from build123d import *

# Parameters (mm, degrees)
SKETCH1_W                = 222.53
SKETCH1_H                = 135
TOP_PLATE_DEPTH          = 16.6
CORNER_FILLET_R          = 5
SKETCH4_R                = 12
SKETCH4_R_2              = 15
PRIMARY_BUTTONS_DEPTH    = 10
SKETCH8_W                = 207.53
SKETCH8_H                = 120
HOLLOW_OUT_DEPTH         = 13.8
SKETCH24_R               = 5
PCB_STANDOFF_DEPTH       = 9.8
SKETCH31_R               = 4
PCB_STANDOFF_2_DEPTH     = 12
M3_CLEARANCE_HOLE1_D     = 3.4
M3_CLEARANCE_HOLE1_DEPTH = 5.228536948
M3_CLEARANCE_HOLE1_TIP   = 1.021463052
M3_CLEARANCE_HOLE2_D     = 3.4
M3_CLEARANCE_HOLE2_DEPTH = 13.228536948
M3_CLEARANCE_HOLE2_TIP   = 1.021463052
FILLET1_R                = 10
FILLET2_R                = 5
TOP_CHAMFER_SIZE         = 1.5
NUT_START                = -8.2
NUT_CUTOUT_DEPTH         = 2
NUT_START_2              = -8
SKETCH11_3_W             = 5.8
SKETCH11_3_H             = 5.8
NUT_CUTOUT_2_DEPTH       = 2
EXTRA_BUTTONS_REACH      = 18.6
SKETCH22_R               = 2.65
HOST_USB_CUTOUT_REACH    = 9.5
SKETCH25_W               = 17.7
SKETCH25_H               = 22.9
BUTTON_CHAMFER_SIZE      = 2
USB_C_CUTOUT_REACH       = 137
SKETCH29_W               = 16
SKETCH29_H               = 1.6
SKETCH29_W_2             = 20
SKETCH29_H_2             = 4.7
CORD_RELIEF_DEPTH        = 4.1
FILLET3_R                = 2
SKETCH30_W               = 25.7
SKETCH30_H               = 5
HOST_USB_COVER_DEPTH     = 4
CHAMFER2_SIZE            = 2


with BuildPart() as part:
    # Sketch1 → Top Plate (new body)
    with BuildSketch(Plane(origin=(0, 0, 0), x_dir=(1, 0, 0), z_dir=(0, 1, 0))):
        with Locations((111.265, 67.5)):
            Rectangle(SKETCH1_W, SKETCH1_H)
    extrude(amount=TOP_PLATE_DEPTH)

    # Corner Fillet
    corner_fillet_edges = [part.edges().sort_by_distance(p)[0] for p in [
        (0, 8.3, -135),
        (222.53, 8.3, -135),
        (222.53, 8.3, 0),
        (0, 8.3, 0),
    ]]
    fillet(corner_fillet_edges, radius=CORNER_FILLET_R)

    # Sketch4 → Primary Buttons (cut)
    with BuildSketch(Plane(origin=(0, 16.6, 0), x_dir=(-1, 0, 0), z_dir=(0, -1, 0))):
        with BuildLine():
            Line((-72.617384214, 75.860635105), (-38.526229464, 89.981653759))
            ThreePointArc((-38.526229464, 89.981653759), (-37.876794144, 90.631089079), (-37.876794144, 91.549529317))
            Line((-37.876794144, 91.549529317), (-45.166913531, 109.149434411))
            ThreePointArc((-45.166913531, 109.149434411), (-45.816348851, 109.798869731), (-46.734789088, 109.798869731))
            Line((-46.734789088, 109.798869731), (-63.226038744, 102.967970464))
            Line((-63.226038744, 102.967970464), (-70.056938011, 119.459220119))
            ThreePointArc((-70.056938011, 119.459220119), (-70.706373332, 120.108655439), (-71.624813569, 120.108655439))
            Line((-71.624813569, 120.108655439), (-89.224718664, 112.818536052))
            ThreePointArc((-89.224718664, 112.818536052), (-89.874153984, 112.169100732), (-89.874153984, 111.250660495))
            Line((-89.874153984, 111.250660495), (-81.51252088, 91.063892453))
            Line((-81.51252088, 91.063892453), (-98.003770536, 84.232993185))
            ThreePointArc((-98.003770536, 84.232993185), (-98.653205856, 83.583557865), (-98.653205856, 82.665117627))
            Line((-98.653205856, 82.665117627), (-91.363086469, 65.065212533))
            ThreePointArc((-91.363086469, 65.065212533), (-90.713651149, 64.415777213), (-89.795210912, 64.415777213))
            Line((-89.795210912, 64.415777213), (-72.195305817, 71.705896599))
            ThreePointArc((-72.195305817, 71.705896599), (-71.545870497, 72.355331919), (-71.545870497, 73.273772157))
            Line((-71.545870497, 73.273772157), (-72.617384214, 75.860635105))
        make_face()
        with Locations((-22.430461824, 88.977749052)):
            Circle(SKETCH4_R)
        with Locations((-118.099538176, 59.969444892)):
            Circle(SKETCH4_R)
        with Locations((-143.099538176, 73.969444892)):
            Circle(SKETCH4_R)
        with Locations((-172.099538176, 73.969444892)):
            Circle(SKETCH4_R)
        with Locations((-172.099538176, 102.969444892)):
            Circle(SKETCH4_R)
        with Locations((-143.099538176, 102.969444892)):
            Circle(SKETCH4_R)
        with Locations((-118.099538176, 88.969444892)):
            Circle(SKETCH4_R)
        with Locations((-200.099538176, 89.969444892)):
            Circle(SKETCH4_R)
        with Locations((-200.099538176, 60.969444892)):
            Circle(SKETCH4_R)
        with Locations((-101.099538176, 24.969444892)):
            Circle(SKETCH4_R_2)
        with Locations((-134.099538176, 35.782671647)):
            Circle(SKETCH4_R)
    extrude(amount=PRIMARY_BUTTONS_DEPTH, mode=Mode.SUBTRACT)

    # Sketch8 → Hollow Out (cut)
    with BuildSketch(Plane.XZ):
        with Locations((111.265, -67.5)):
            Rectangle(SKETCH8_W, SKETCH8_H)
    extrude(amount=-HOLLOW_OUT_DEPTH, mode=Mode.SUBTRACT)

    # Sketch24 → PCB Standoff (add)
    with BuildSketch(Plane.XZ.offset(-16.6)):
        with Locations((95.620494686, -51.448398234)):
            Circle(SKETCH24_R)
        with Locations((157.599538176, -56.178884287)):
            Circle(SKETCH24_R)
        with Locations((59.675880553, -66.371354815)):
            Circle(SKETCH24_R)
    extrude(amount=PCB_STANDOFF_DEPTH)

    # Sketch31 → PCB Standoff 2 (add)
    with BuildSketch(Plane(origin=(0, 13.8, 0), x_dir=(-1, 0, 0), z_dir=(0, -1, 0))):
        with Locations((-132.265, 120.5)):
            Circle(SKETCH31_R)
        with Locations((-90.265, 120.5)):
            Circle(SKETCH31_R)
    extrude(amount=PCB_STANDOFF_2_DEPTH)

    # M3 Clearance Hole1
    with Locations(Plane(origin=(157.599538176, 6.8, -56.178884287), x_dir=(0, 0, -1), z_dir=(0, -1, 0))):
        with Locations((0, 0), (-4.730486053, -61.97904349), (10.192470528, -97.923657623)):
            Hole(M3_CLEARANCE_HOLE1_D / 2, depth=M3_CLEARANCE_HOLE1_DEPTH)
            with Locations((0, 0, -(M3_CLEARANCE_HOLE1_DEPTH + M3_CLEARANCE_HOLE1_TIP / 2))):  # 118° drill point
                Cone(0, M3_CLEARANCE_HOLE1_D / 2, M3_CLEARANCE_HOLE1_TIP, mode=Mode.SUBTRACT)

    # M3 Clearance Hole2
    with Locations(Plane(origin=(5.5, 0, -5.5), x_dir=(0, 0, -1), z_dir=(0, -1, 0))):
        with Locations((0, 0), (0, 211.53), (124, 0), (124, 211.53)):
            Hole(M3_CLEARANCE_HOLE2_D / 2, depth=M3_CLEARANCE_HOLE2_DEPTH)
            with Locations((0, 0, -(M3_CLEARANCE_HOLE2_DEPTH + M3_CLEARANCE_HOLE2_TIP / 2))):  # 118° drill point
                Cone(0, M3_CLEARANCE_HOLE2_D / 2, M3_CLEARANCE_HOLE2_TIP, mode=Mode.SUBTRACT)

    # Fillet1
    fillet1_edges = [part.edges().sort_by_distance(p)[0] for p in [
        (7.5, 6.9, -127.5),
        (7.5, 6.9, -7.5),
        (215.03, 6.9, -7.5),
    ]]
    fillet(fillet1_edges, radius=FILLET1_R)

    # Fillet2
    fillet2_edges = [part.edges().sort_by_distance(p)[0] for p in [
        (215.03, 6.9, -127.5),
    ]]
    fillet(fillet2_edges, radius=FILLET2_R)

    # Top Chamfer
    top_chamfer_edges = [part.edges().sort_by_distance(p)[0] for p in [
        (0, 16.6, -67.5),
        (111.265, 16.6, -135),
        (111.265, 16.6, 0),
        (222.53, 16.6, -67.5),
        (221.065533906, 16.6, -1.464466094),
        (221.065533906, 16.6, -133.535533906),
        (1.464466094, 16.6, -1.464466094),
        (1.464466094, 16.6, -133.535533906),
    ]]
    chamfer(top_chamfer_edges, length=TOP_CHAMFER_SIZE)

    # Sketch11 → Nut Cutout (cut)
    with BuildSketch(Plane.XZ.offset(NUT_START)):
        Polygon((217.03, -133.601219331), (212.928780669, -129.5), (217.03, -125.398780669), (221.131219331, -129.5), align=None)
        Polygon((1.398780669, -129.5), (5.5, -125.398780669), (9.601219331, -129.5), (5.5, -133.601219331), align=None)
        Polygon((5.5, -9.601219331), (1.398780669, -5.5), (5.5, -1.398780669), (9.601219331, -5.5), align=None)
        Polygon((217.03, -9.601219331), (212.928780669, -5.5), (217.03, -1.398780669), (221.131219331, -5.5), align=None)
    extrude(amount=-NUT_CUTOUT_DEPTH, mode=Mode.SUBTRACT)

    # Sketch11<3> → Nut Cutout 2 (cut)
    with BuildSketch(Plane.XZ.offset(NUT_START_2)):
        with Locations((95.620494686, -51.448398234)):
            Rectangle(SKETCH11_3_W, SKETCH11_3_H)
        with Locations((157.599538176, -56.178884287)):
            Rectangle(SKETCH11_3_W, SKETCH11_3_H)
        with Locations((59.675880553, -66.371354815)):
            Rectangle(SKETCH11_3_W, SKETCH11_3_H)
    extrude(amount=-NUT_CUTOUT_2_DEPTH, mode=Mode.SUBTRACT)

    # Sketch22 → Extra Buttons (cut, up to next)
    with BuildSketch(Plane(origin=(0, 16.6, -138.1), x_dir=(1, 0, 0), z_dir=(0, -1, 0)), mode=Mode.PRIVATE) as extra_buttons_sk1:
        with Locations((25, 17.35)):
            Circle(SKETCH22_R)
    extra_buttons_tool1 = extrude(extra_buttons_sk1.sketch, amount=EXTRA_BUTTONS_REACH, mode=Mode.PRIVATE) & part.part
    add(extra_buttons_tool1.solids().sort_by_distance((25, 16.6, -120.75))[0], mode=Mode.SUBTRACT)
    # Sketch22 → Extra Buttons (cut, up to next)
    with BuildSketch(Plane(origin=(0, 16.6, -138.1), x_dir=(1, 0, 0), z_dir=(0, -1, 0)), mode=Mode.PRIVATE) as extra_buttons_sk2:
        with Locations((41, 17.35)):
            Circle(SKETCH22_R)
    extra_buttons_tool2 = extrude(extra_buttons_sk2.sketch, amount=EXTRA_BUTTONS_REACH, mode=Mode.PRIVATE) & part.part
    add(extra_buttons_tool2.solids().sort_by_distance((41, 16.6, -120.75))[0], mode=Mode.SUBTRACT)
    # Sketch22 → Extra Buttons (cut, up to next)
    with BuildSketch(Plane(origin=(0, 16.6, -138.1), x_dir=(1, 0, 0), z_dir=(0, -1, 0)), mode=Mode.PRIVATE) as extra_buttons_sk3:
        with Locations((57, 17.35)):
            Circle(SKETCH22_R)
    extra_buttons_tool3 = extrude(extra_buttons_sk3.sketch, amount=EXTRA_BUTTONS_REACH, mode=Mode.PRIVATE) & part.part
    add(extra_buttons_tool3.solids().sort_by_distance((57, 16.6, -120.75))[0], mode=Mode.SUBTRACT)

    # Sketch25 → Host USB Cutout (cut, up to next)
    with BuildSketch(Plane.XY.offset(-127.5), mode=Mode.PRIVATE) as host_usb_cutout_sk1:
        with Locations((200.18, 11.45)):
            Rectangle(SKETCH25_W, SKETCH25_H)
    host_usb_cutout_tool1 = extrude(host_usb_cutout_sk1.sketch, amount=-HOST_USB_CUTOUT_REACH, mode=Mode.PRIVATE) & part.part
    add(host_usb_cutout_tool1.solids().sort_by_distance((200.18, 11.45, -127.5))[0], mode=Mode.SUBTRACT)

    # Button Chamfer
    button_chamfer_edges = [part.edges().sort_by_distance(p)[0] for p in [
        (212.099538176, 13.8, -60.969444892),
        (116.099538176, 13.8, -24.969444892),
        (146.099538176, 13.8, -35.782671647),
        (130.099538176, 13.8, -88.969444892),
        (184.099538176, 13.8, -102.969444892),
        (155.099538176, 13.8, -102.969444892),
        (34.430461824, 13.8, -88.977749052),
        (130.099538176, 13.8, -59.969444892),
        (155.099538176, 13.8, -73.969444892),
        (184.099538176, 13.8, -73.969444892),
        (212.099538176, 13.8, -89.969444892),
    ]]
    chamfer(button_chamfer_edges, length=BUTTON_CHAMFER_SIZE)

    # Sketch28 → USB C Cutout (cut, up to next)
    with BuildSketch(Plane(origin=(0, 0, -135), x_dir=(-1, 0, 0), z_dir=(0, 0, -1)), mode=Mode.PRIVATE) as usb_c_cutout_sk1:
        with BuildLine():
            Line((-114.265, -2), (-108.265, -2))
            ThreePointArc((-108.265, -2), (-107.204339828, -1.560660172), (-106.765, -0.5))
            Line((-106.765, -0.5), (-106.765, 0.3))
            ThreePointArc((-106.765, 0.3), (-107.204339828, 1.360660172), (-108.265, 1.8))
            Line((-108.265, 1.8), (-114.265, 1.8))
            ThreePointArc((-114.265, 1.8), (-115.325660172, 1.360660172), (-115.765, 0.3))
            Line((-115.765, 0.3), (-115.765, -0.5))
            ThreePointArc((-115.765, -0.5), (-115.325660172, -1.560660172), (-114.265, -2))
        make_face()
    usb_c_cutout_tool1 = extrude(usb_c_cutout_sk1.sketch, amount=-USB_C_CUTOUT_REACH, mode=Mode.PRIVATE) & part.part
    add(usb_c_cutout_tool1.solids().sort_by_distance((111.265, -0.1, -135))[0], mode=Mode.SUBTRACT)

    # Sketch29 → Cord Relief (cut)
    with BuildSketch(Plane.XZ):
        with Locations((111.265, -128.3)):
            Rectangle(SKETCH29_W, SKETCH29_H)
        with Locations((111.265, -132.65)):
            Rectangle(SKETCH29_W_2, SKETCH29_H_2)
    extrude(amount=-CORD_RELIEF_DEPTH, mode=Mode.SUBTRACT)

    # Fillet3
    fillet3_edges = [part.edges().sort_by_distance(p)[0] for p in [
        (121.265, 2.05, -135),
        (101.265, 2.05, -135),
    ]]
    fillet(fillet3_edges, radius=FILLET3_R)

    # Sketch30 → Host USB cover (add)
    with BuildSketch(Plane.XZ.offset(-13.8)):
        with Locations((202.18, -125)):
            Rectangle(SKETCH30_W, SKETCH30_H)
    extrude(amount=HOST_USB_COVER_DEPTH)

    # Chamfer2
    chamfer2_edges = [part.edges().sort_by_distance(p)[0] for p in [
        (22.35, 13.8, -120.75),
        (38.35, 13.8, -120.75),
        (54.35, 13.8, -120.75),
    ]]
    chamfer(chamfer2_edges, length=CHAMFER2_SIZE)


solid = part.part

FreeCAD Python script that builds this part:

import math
import FreeCAD as App
import Part
import Sketcher

V = App.Vector
Q = App.Units.Quantity


def edges_at(feature, points):
    """Names of the edges that pass closest to the given points."""
    edges = feature.Shape.Edges
    near = lambda p: min(range(len(edges)), key=lambda i: edges[i].distToShape(Part.Vertex(*p))[0])
    return sorted({f"Edge{near(p) + 1}" for p in points})

doc = App.newDocument("Part")
body = doc.addObject("PartDesign::Body", "Body")

# Sketch on XZ plane
sketch1 = body.newObject("Sketcher::SketchObject", "Sketch")
sketch1.AttachmentSupport = (doc.getObject("XZ_Plane"), [""])
sketch1.MapMode = "FlatFace"
sketch1.addGeometry([
    Part.LineSegment(V(0, -135, 0), V(0, 0, 0)),
    Part.LineSegment(V(0, 0, 0), V(223, 0, 0)),
    Part.LineSegment(V(223, 0, 0), V(223, -135, 0)),
    Part.LineSegment(V(223, -135, 0), V(0, -135, 0)),
], False)
sketch1.addConstraint([
    Sketcher.Constraint("Coincident", 0, 2, 1, 1),
    Sketcher.Constraint("Coincident", 1, 2, 2, 1),
    Sketcher.Constraint("Coincident", 2, 2, 3, 1),
    Sketcher.Constraint("Coincident", 3, 2, 0, 1),
    Sketcher.Constraint("Vertical", 0),
    Sketcher.Constraint("Horizontal", 1),
    Sketcher.Constraint("Vertical", 2),
    Sketcher.Constraint("Horizontal", 3),
    Sketcher.Constraint("Coincident", 0, 2, -1, 1),
    Sketcher.Constraint("DistanceY", 0, 1, 0, 2, Q("135 mm")),
    Sketcher.Constraint("DistanceX", 1, 1, 1, 2, Q("222.53 mm")),
])
pad1 = body.newObject("PartDesign::Pad", "Pad")
pad1.Profile = sketch1
pad1.Length = 16.6
pad1.Reversed = True
doc.recompute()

fillet = body.newObject("PartDesign::Fillet", "Fillet")
fillet.Base = (pad1, edges_at(pad1, [
    (0, 8.3, -135),
    (222.53, 8.3, -135),
    (222.53, 8.3, 0),
    (0, 8.3, 0),
]))
fillet.Radius = 5

# Sketch on XZ plane
sketch2 = body.newObject("Sketcher::SketchObject", "Sketch001")
sketch2.AttachmentSupport = (doc.getObject("XZ_Plane"), [""])
sketch2.MapMode = "FlatFace"
sketch2.AttachmentOffset = App.Placement(V(0, 0, -16.6), App.Rotation())
sketch2.addGeometry([
    Part.LineSegment(V(72.6, -75.9, 0), V(38.5, -90, 0)),  # 0
    Part.ArcOfCircle(Part.Circle(V(39, -91.1, 0), V(0, 0, 1), 1.2), math.radians(113), math.radians(203)),  # 1
    Part.LineSegment(V(37.9, -91.5, 0), V(45.2, -109.1, 0)),  # 2
    Part.ArcOfCircle(Part.Circle(V(46.3, -108.7, 0), V(0, 0, 1), 1.2), math.radians(-157), math.radians(-68)),  # 3
    Part.LineSegment(V(46.7, -109.8, 0), V(63.2, -103, 0)),  # 4
    Part.LineSegment(V(63.2, -103, 0), V(70.1, -119.5, 0)),  # 5
    Part.ArcOfCircle(Part.Circle(V(71.2, -119, 0), V(0, 0, 1), 1.2), math.radians(-157), math.radians(-68)),  # 6
    Part.LineSegment(V(71.6, -120.1, 0), V(89.2, -112.8, 0)),  # 7
    Part.ArcOfCircle(Part.Circle(V(88.8, -111.7, 0), V(0, 0, 1), 1.2), math.radians(-68), math.radians(23)),  # 8
    Part.LineSegment(V(89.9, -111.3, 0), V(81.5, -91.1, 0)),  # 9
    Part.LineSegment(V(81.5, -91.1, 0), V(98, -84.2, 0)),  # 10
    Part.ArcOfCircle(Part.Circle(V(97.5, -83.1, 0), V(0, 0, 1), 1.2), math.radians(-67), math.radians(23)),  # 11
    Part.LineSegment(V(98.7, -82.7, 0), V(91.4, -65.1, 0)),  # 12
    Part.ArcOfCircle(Part.Circle(V(90.3, -65.5, 0), V(0, 0, 1), 1.2), math.radians(22), math.radians(113)),  # 13
    Part.LineSegment(V(89.8, -64.4, 0), V(72.2, -71.7, 0)),  # 14
    Part.ArcOfCircle(Part.Circle(V(72.7, -72.8, 0), V(0, 0, 1), 1.2), math.radians(113), math.radians(203)),  # 15
    Part.LineSegment(V(71.5, -73.3, 0), V(72.6, -75.9, 0)),  # 16
    Part.Circle(V(22.4, -89, 0), V(0, 0, 1), 12),  # 17
    Part.Circle(V(118.1, -60, 0), V(0, 0, 1), 12),  # 18
    Part.Circle(V(143.1, -74, 0), V(0, 0, 1), 12),  # 19
    Part.Circle(V(172.1, -74, 0), V(0, 0, 1), 12),  # 20
    Part.Circle(V(172.1, -103, 0), V(0, 0, 1), 12),  # 21
    Part.Circle(V(143.1, -103, 0), V(0, 0, 1), 12),  # 22
    Part.Circle(V(118.1, -89, 0), V(0, 0, 1), 12),  # 23
    Part.Circle(V(200.1, -90, 0), V(0, 0, 1), 12),  # 24
    Part.Circle(V(200.1, -61, 0), V(0, 0, 1), 12),  # 25
    Part.Circle(V(101.1, -25, 0), V(0, 0, 1), 15),  # 26
    Part.Circle(V(134.1, -35.8, 0), V(0, 0, 1), 12),  # 27
], False)
sketch2.addConstraint([
    Sketcher.Constraint("Tangent", 0, 2, 1, 1),
    Sketcher.Constraint("Tangent", 1, 2, 2, 1),
    Sketcher.Constraint("Tangent", 2, 2, 3, 1),
    Sketcher.Constraint("Tangent", 3, 2, 4, 1),
    Sketcher.Constraint("Coincident", 4, 2, 5, 1),
    Sketcher.Constraint("Tangent", 5, 2, 6, 1),
    Sketcher.Constraint("Tangent", 6, 2, 7, 1),
    Sketcher.Constraint("Tangent", 7, 2, 8, 1),
    Sketcher.Constraint("Tangent", 8, 2, 9, 1),
    Sketcher.Constraint("Coincident", 9, 2, 10, 1),
    Sketcher.Constraint("Tangent", 10, 2, 11, 1),
    Sketcher.Constraint("Tangent", 11, 2, 12, 1),
    Sketcher.Constraint("Tangent", 12, 2, 13, 1),
    Sketcher.Constraint("Tangent", 13, 2, 14, 1),
    Sketcher.Constraint("Tangent", 14, 2, 15, 1),
    Sketcher.Constraint("Tangent", 15, 2, 16, 1),
    Sketcher.Constraint("Coincident", 16, 2, 0, 1),
    Sketcher.Constraint("Equal", 1, 3),
    Sketcher.Constraint("Equal", 3, 6),
    Sketcher.Constraint("Equal", 6, 8),
    Sketcher.Constraint("Equal", 8, 11),
    Sketcher.Constraint("Equal", 11, 13),
    Sketcher.Constraint("Equal", 13, 15),
    Sketcher.Constraint("Equal", 17, 18),
    Sketcher.Constraint("Equal", 18, 19),
    Sketcher.Constraint("Equal", 19, 20),
    Sketcher.Constraint("Equal", 20, 21),
    Sketcher.Constraint("Equal", 21, 22),
    Sketcher.Constraint("Equal", 22, 23),
    Sketcher.Constraint("Equal", 23, 24),
    Sketcher.Constraint("Equal", 24, 25),
    Sketcher.Constraint("Equal", 25, 27),
    Sketcher.Constraint("Perpendicular", 0, 2),
    Sketcher.Constraint("Perpendicular", 2, 4),
    Sketcher.Constraint("Perpendicular", 4, 5),
    Sketcher.Constraint("Perpendicular", 5, 7),
    Sketcher.Constraint("Perpendicular", 7, 9),
    Sketcher.Constraint("Perpendicular", 9, 10),
    Sketcher.Constraint("Perpendicular", 10, 12),
    Sketcher.Constraint("Perpendicular", 12, 14),
    Sketcher.Constraint("Perpendicular", 14, 16),
    Sketcher.Constraint("Horizontal", 19, 3, 20, 3),
    Sketcher.Constraint("Horizontal", 21, 3, 22, 3),
    Sketcher.Constraint("Vertical", 20, 3, 21, 3),
    Sketcher.Constraint("Vertical", 19, 3, 22, 3),
    Sketcher.Constraint("Vertical", 18, 3, 23, 3),
    Sketcher.Constraint("Vertical", 24, 3, 25, 3),
    Sketcher.Constraint("Equal", 4, 5),
    Sketcher.Constraint("Equal", 2, 7),
    Sketcher.Constraint("Equal", 5, 10),
    Sketcher.Constraint("Equal", 7, 12),
    Sketcher.Constraint("Equal", 12, 14),
    Sketcher.Constraint("Diameter", 17, Q("24 mm")),
    Sketcher.Constraint("Diameter", 26, Q("30 mm")),
    Sketcher.Constraint("Radius", 1, Q("1.2 mm")),
    Sketcher.Constraint("DistanceY", 6, 3, -1, 1, Q("119 mm")),
    Sketcher.Constraint("Angle", 0, Q("-157.5 deg")),
    Sketcher.Constraint("DistanceX", 18, 3, 19, 3, Q("25 mm")),
    Sketcher.Constraint("DistanceY", 19, 3, 18, 3, Q("14 mm")),
    Sketcher.Constraint("DistanceX", 19, 3, 20, 3, Q("29 mm")),
    Sketcher.Constraint("DistanceY", 21, 3, 20, 3, Q("29 mm")),
    Sketcher.Constraint("DistanceY", 22, 3, 23, 3, Q("14 mm")),
    Sketcher.Constraint("DistanceX", 21, 3, 24, 3, Q("28 mm")),
    Sketcher.Constraint("DistanceY", 21, 3, 24, 3, Q("13 mm")),
    Sketcher.Constraint("DistanceY", 24, 3, 25, 3, Q("29 mm")),
    Sketcher.Constraint("DistanceX", 26, 3, 18, 3, Q("17 mm")),
    Sketcher.Constraint("DistanceY", 18, 3, 26, 3, Q("35 mm")),
    Sketcher.Constraint("DistanceX", 18, 3, 27, 3, Q("16 mm")),
    Sketcher.Constraint("Distance", 0, Q("36.9 mm")),
    Sketcher.Constraint("Distance", 16, Q("2.8 mm")),
    Sketcher.Constraint("Distance", 2, Q("19.05 mm")),
    Sketcher.Constraint("DistanceX", -1, 1, 8, 3, Q("88.765499 mm")),
    Sketcher.Constraint("DistanceX", -1, 1, 17, 3, Q("22.430462 mm")),
    Sketcher.Constraint("DistanceY", 17, 3, -1, 1, Q("88.977749 mm")),
    Sketcher.Constraint("DistanceX", -1, 1, 18, 3, Q("118.099538 mm")),
    Sketcher.Constraint("DistanceY", 27, 3, -1, 1, Q("35.782672 mm")),
    Sketcher.Constraint("DistanceY", 23, 3, 10, 2, Q("4.736452 mm")),
])
pocket1 = body.newObject("PartDesign::Pocket", "Pocket")
pocket1.Profile = sketch2
pocket1.Length = 10
pocket1.Reversed = True

# Sketch on XZ plane
sketch3 = body.newObject("Sketcher::SketchObject", "Sketch002")
sketch3.AttachmentSupport = (doc.getObject("XZ_Plane"), [""])
sketch3.MapMode = "FlatFace"
sketch3.addGeometry([
    Part.LineSegment(V(8, -8, 0), V(8, -128, 0)),
    Part.LineSegment(V(8, -128, 0), V(215, -128, 0)),
    Part.LineSegment(V(215, -128, 0), V(215, -8, 0)),
    Part.LineSegment(V(215, -8, 0), V(8, -8, 0)),
], False)
sketch3.addConstraint([
    Sketcher.Constraint("Coincident", 0, 2, 1, 1),
    Sketcher.Constraint("Coincident", 1, 2, 2, 1),
    Sketcher.Constraint("Coincident", 2, 2, 3, 1),
    Sketcher.Constraint("Coincident", 3, 2, 0, 1),
    Sketcher.Constraint("Vertical", 0),
    Sketcher.Constraint("Horizontal", 1),
    Sketcher.Constraint("Vertical", 2),
    Sketcher.Constraint("Horizontal", 3),
    Sketcher.Constraint("DistanceY", 0, 2, 0, 1, Q("120 mm")),
    Sketcher.Constraint("DistanceX", 1, 1, 1, 2, Q("207.53 mm")),
    Sketcher.Constraint("DistanceX", -1, 1, 0, 2, Q("7.5 mm")),
    Sketcher.Constraint("DistanceY", 0, 2, -1, 1, Q("127.5 mm")),
])
pocket2 = body.newObject("PartDesign::Pocket", "Pocket001")
pocket2.Profile = sketch3
pocket2.Length = 13.8

# Sketch on XZ plane
sketch4 = body.newObject("Sketcher::SketchObject", "Sketch003")
sketch4.AttachmentSupport = (doc.getObject("XZ_Plane"), [""])
sketch4.MapMode = "FlatFace"
sketch4.AttachmentOffset = App.Placement(V(0, 0, -16.6), App.Rotation())
sketch4.addGeometry([
    Part.Circle(V(96, -51, 0), V(0, 0, 1), 5),
    Part.Circle(V(158, -56, 0), V(0, 0, 1), 5),
    Part.Circle(V(60, -66, 0), V(0, 0, 1), 5),
], False)
sketch4.addConstraint([
    Sketcher.Constraint("Equal", 0, 1),
    Sketcher.Constraint("Equal", 1, 2),
    Sketcher.Constraint("Diameter", 0, Q("10 mm")),
    Sketcher.Constraint("DistanceY", 0, 3, -1, 1, Q("51.448398 mm")),
    Sketcher.Constraint("DistanceX", -1, 1, 1, 3, Q("157.599538 mm")),
    Sketcher.Constraint("DistanceX", -1, 1, 2, 3, Q("59.675881 mm")),
    Sketcher.Constraint("DistanceY", 2, 3, 1, 3, Q("10.192471 mm")),
    Sketcher.Constraint("DistanceX", -1, 1, 0, 3, Q("95.620495 mm")),
    Sketcher.Constraint("DistanceY", 1, 3, -1, 1, Q("56.178884 mm")),
])
pad2 = body.newObject("PartDesign::Pad", "Pad001")
pad2.Profile = sketch4
pad2.Length = 9.8

# Sketch on XZ plane
sketch5 = body.newObject("Sketcher::SketchObject", "Sketch004")
sketch5.AttachmentSupport = (doc.getObject("XZ_Plane"), [""])
sketch5.MapMode = "FlatFace"
sketch5.AttachmentOffset = App.Placement(V(0, 0, -13.8), App.Rotation())
sketch5.addGeometry([
    Part.Circle(V(132.3, -120.5, 0), V(0, 0, 1), 4),
    Part.Circle(V(90.3, -120.5, 0), V(0, 0, 1), 4),
], False)
sketch5.addConstraint([
    Sketcher.Constraint("Equal", 0, 1),
    Sketcher.Constraint("Horizontal", 0, 3, 1, 3),
    Sketcher.Constraint("Diameter", 0, Q("8 mm")),
    Sketcher.Constraint("DistanceX", 1, 3, 0, 3, Q("42 mm")),
    Sketcher.Constraint("DistanceY", 0, 3, -1, 1, Q("120.5 mm")),
    Sketcher.Constraint("DistanceX", -1, 1, 0, 3, Q("132.265 mm")),
])
pad3 = body.newObject("PartDesign::Pad", "Pad002")
pad3.Profile = sketch5
pad3.Length = 12

# Sketch on XZ plane
sketch6 = body.newObject("Sketcher::SketchObject", "Sketch005")
sketch6.AttachmentSupport = (doc.getObject("XZ_Plane"), [""])
sketch6.MapMode = "FlatFace"
sketch6.AttachmentOffset = App.Placement(V(0, 0, -6.8), App.Rotation())
sketch6.addGeometry([
    Part.Circle(V(157.6, -56.2, 0), V(0, 0, 1), 1.7),
    Part.Circle(V(95.6, -51.4, 0), V(0, 0, 1), 1.7),
    Part.Circle(V(59.7, -66.4, 0), V(0, 0, 1), 1.7),
], False)
sketch6.addConstraint([
    Sketcher.Constraint("Equal", 0, 1),
    Sketcher.Constraint("Equal", 1, 2),
    Sketcher.Constraint("Diameter", 0, Q("3.4 mm")),
    Sketcher.Constraint("DistanceY", 1, 3, -1, 1, Q("51.448398 mm")),
    Sketcher.Constraint("DistanceX", -1, 1, 0, 3, Q("157.599538 mm")),
    Sketcher.Constraint("DistanceX", -1, 1, 2, 3, Q("59.675881 mm")),
    Sketcher.Constraint("DistanceY", 2, 3, 0, 3, Q("10.192471 mm")),
    Sketcher.Constraint("DistanceY", 0, 3, -1, 1, Q("56.178884 mm")),
    Sketcher.Constraint("DistanceX", -1, 1, 1, 3, Q("95.620495 mm")),
])
doc.recompute()
hole = body.newObject("PartDesign::Hole", "Hole")
hole.Profile = sketch6
hole.ThreadType = "None"
hole.Diameter = 3.4
hole.DepthType = "Dimension"
hole.Depth = 5.228537
hole.DrillPoint = "Angled"
hole.DrillPointAngle = 118

# Sketch on XZ plane
sketch7 = body.newObject("Sketcher::SketchObject", "Sketch006")
sketch7.AttachmentSupport = (doc.getObject("XZ_Plane"), [""])
sketch7.MapMode = "FlatFace"
sketch7.addGeometry([
    Part.Circle(V(5.5, -5.5, 0), V(0, 0, 1), 1.7),
    Part.Circle(V(217, -5.5, 0), V(0, 0, 1), 1.7),
    Part.Circle(V(5.5, -129.5, 0), V(0, 0, 1), 1.7),
    Part.Circle(V(217, -129.5, 0), V(0, 0, 1), 1.7),
], False)
sketch7.addConstraint([
    Sketcher.Constraint("Equal", 0, 1),
    Sketcher.Constraint("Equal", 1, 2),
    Sketcher.Constraint("Equal", 2, 3),
    Sketcher.Constraint("Horizontal", 0, 3, 1, 3),
    Sketcher.Constraint("Horizontal", 2, 3, 3, 3),
    Sketcher.Constraint("Vertical", 0, 3, 2, 3),
    Sketcher.Constraint("Vertical", 1, 3, 3, 3),
    Sketcher.Constraint("Diameter", 0, Q("3.4 mm")),
    Sketcher.Constraint("DistanceY", 2, 3, 0, 3, Q("124 mm")),
    Sketcher.Constraint("DistanceX", -1, 1, 0, 3, Q("5.5 mm")),
    Sketcher.Constraint("DistanceY", 0, 3, -1, 1, Q("5.5 mm")),
    Sketcher.Constraint("DistanceX", -1, 1, 1, 3, Q("217.03 mm")),
])
doc.recompute()
hole2 = body.newObject("PartDesign::Hole", "Hole001")
hole2.Profile = sketch7
hole2.ThreadType = "None"
hole2.Diameter = 3.4
hole2.DepthType = "Dimension"
hole2.Depth = 13.228537
hole2.DrillPoint = "Angled"
hole2.DrillPointAngle = 118
doc.recompute()

fillet2 = body.newObject("PartDesign::Fillet", "Fillet001")
fillet2.Base = (hole2, edges_at(hole2, [(7.5, 6.9, -127.5), (7.5, 6.9, -7.5), (215.03, 6.9, -7.5)]))
fillet2.Radius = 10
doc.recompute()

fillet3 = body.newObject("PartDesign::Fillet", "Fillet002")
fillet3.Base = (fillet2, edges_at(fillet2, [(215.03, 6.9, -127.5)]))
fillet3.Radius = 5
doc.recompute()

chamfer = body.newObject("PartDesign::Chamfer", "Chamfer")
chamfer.Base = (fillet3, edges_at(fillet3, [
    (0, 16.6, -67.5),
    (111.265, 16.6, -135),
    (111.265, 16.6, 0),
    (222.53, 16.6, -67.5),
    (221.066, 16.6, -1.464),
    (221.066, 16.6, -133.536),
    (1.464, 16.6, -1.464),
    (1.464, 16.6, -133.536),
]))
chamfer.Size = 1.5

# Sketch on XZ plane
sketch8 = body.newObject("Sketcher::SketchObject", "Sketch007")
sketch8.AttachmentSupport = (doc.getObject("XZ_Plane"), [""])
sketch8.MapMode = "FlatFace"
sketch8.AttachmentOffset = App.Placement(V(0, 0, -8.2), App.Rotation())
sketch8.addGeometry([
    Part.LineSegment(V(213, -130, 0), V(217, -134, 0)),  # 0
    Part.LineSegment(V(217, -134, 0), V(221, -130, 0)),  # 1
    Part.LineSegment(V(221, -130, 0), V(217, -125, 0)),  # 2
    Part.LineSegment(V(217, -125, 0), V(213, -130, 0)),  # 3
    Part.LineSegment(V(6, -125, 0), V(1, -130, 0)),  # 4
    Part.LineSegment(V(1, -130, 0), V(6, -134, 0)),  # 5
    Part.LineSegment(V(6, -134, 0), V(10, -130, 0)),  # 6
    Part.LineSegment(V(10, -130, 0), V(6, -125, 0)),  # 7
    Part.LineSegment(V(1, -6, 0), V(6, -10, 0)),  # 8
    Part.LineSegment(V(6, -10, 0), V(10, -6, 0)),  # 9
    Part.LineSegment(V(10, -6, 0), V(6, -1, 0)),  # 10
    Part.LineSegment(V(6, -1, 0), V(1, -6, 0)),  # 11
    Part.LineSegment(V(213, -6, 0), V(217, -10, 0)),  # 12
    Part.LineSegment(V(217, -10, 0), V(221, -6, 0)),  # 13
    Part.LineSegment(V(221, -6, 0), V(217, -1, 0)),  # 14
    Part.LineSegment(V(217, -1, 0), V(213, -6, 0)),  # 15
], False)
sketch8.addConstraint([
    Sketcher.Constraint("Coincident", 0, 2, 1, 1),
    Sketcher.Constraint("Coincident", 1, 2, 2, 1),
    Sketcher.Constraint("Coincident", 2, 2, 3, 1),
    Sketcher.Constraint("Coincident", 3, 2, 0, 1),
    Sketcher.Constraint("Coincident", 4, 2, 5, 1),
    Sketcher.Constraint("Coincident", 5, 2, 6, 1),
    Sketcher.Constraint("Coincident", 6, 2, 7, 1),
    Sketcher.Constraint("Coincident", 7, 2, 4, 1),
    Sketcher.Constraint("Coincident", 8, 2, 9, 1),
    Sketcher.Constraint("Coincident", 9, 2, 10, 1),
    Sketcher.Constraint("Coincident", 10, 2, 11, 1),
    Sketcher.Constraint("Coincident", 11, 2, 8, 1),
    Sketcher.Constraint("Coincident", 12, 2, 13, 1),
    Sketcher.Constraint("Coincident", 13, 2, 14, 1),
    Sketcher.Constraint("Coincident", 14, 2, 15, 1),
    Sketcher.Constraint("Coincident", 15, 2, 12, 1),
    Sketcher.Constraint("Perpendicular", 0, 1),
    Sketcher.Constraint("Perpendicular", 1, 2),
    Sketcher.Constraint("Perpendicular", 2, 3),
    Sketcher.Constraint("Parallel", 3, 4),
    Sketcher.Constraint("Perpendicular", 4, 5),
    Sketcher.Constraint("Perpendicular", 5, 6),
    Sketcher.Constraint("Perpendicular", 6, 7),
    Sketcher.Constraint("Parallel", 7, 8),
    Sketcher.Constraint("Perpendicular", 8, 9),
    Sketcher.Constraint("Perpendicular", 9, 10),
    Sketcher.Constraint("Perpendicular", 10, 11),
    Sketcher.Constraint("Perpendicular", 11, 12),
    Sketcher.Constraint("Perpendicular", 12, 13),
    Sketcher.Constraint("Perpendicular", 13, 14),
    Sketcher.Constraint("Perpendicular", 14, 15),
    Sketcher.Constraint("Horizontal", 1, 2, 3, 2),
    Sketcher.Constraint("Horizontal", 3, 2, 4, 2),
    Sketcher.Constraint("Horizontal", 0, 2, 5, 2),
    Sketcher.Constraint("Horizontal", 4, 2, 6, 2),
    Sketcher.Constraint("Horizontal", 9, 2, 11, 2),
    Sketcher.Constraint("Horizontal", 8, 2, 12, 2),
    Sketcher.Constraint("Horizontal", 11, 2, 13, 2),
    Sketcher.Constraint("Horizontal", 10, 2, 14, 2),
    Sketcher.Constraint("Vertical", 0, 2, 2, 2),
    Sketcher.Constraint("Vertical", 7, 2, 8, 2),
    Sketcher.Constraint("Vertical", 6, 2, 9, 2),
    Sketcher.Constraint("Vertical", 2, 2, 12, 2),
    Sketcher.Constraint("DistanceY", 5, 2, 8, 2, Q("124 mm")),
    Sketcher.Constraint("Distance", 0, Q("5.8 mm")),
    Sketcher.Constraint("DistanceY", 1, 2, -1, 1, Q("129.5 mm")),
    Sketcher.Constraint("DistanceX", -1, 1, 5, 2, Q("5.5 mm")),
    Sketcher.Constraint("DistanceX", -1, 1, 0, 2, Q("217.03 mm")),
])
pocket3 = body.newObject("PartDesign::Pocket", "Pocket002")
pocket3.Profile = sketch8
pocket3.Length = 2

# Sketch on XZ plane
sketch9 = body.newObject("Sketcher::SketchObject", "Sketch008")
sketch9.AttachmentSupport = (doc.getObject("XZ_Plane"), [""])
sketch9.MapMode = "FlatFace"
sketch9.AttachmentOffset = App.Placement(V(0, 0, -8), App.Rotation())
sketch9.addGeometry([
    Part.LineSegment(V(93, -49, 0), V(93, -54, 0)),  # 0
    Part.LineSegment(V(93, -54, 0), V(99, -54, 0)),  # 1
    Part.LineSegment(V(99, -54, 0), V(99, -49, 0)),  # 2
    Part.LineSegment(V(99, -49, 0), V(93, -49, 0)),  # 3
    Part.LineSegment(V(155, -53, 0), V(155, -59, 0)),  # 4
    Part.LineSegment(V(155, -59, 0), V(160, -59, 0)),  # 5
    Part.LineSegment(V(160, -59, 0), V(160, -53, 0)),  # 6
    Part.LineSegment(V(160, -53, 0), V(155, -53, 0)),  # 7
    Part.LineSegment(V(57, -63, 0), V(57, -69, 0)),  # 8
    Part.LineSegment(V(57, -69, 0), V(63, -69, 0)),  # 9
    Part.LineSegment(V(63, -69, 0), V(63, -63, 0)),  # 10
    Part.LineSegment(V(63, -63, 0), V(57, -63, 0)),  # 11
], False)
sketch9.addConstraint([
    Sketcher.Constraint("Coincident", 0, 2, 1, 1),
    Sketcher.Constraint("Coincident", 1, 2, 2, 1),
    Sketcher.Constraint("Coincident", 2, 2, 3, 1),
    Sketcher.Constraint("Coincident", 3, 2, 0, 1),
    Sketcher.Constraint("Coincident", 4, 2, 5, 1),
    Sketcher.Constraint("Coincident", 5, 2, 6, 1),
    Sketcher.Constraint("Coincident", 6, 2, 7, 1),
    Sketcher.Constraint("Coincident", 7, 2, 4, 1),
    Sketcher.Constraint("Coincident", 8, 2, 9, 1),
    Sketcher.Constraint("Coincident", 9, 2, 10, 1),
    Sketcher.Constraint("Coincident", 10, 2, 11, 1),
    Sketcher.Constraint("Coincident", 11, 2, 8, 1),
    Sketcher.Constraint("Vertical", 0),
    Sketcher.Constraint("Horizontal", 1),
    Sketcher.Constraint("Vertical", 2),
    Sketcher.Constraint("Horizontal", 3),
    Sketcher.Constraint("Vertical", 4),
    Sketcher.Constraint("Horizontal", 5),
    Sketcher.Constraint("Vertical", 6),
    Sketcher.Constraint("Horizontal", 7),
    Sketcher.Constraint("Vertical", 8),
    Sketcher.Constraint("Horizontal", 9),
    Sketcher.Constraint("Vertical", 10),
    Sketcher.Constraint("Horizontal", 11),
    Sketcher.Constraint("Equal", 3, 5),
    Sketcher.Constraint("Equal", 7, 9),
    Sketcher.Constraint("Equal", 11, 0),
    Sketcher.Constraint("Equal", 2, 4),
    Sketcher.Constraint("Equal", 6, 8),
    Sketcher.Constraint("DistanceX", 1, 1, 1, 2, Q("5.8 mm")),
    Sketcher.Constraint("DistanceY", 0, 2, -1, 1, Q("54.348398 mm")),
    Sketcher.Constraint("DistanceX", -1, 1, 4, 2, Q("154.699538 mm")),
    Sketcher.Constraint("DistanceX", -1, 1, 8, 2, Q("56.775881 mm")),
    Sketcher.Constraint("DistanceY", 8, 2, 4, 2, Q("10.192471 mm")),
    Sketcher.Constraint("DistanceX", -1, 1, 0, 2, Q("92.720495 mm")),
    Sketcher.Constraint("DistanceY", 4, 2, -1, 1, Q("59.078884 mm")),
])
pocket4 = body.newObject("PartDesign::Pocket", "Pocket003")
pocket4.Profile = sketch9
pocket4.Length = 2

# Sketch on XZ plane
sketch10 = body.newObject("Sketcher::SketchObject", "Sketch009")
sketch10.AttachmentSupport = (doc.getObject("XZ_Plane"), [""])
sketch10.MapMode = "FlatFace"
sketch10.AttachmentOffset = App.Placement(V(0, 0, -16.6), App.Rotation())
sketch10.addGeometry(Part.Circle(V(25, -120.8, 0), V(0, 0, 1), 2.6), False)
sketch10.addConstraint([
    Sketcher.Constraint("Diameter", 0, Q("5.3 mm")),
    Sketcher.Constraint("DistanceX", -1, 1, 0, 3, Q("25 mm")),
    Sketcher.Constraint("DistanceY", 0, 3, -1, 1, Q("120.75 mm")),
])
pocket5 = body.newObject("PartDesign::Pocket", "Pocket004")
pocket5.Profile = sketch10
pocket5.Type = "UpToFirst"
pocket5.Reversed = True

# Sketch on XZ plane
sketch11 = body.newObject("Sketcher::SketchObject", "Sketch010")
sketch11.AttachmentSupport = (doc.getObject("XZ_Plane"), [""])
sketch11.MapMode = "FlatFace"
sketch11.AttachmentOffset = App.Placement(V(0, 0, -16.6), App.Rotation())
sketch11.addGeometry(Part.Circle(V(41, -120.8, 0), V(0, 0, 1), 2.6), False)
sketch11.addConstraint([
    Sketcher.Constraint("Diameter", 0, Q("5.3 mm")),
    Sketcher.Constraint("DistanceX", -1, 1, 0, 3, Q("41 mm")),
    Sketcher.Constraint("DistanceY", 0, 3, -1, 1, Q("120.75 mm")),
])
pocket6 = body.newObject("PartDesign::Pocket", "Pocket005")
pocket6.Profile = sketch11
pocket6.Type = "UpToFirst"
pocket6.Reversed = True

# Sketch on XZ plane
sketch12 = body.newObject("Sketcher::SketchObject", "Sketch011")
sketch12.AttachmentSupport = (doc.getObject("XZ_Plane"), [""])
sketch12.MapMode = "FlatFace"
sketch12.AttachmentOffset = App.Placement(V(0, 0, -16.6), App.Rotation())
sketch12.addGeometry(Part.Circle(V(57, -120.8, 0), V(0, 0, 1), 2.6), False)
sketch12.addConstraint([
    Sketcher.Constraint("Diameter", 0, Q("5.3 mm")),
    Sketcher.Constraint("DistanceX", -1, 1, 0, 3, Q("57 mm")),
    Sketcher.Constraint("DistanceY", 0, 3, -1, 1, Q("120.75 mm")),
])
pocket7 = body.newObject("PartDesign::Pocket", "Pocket006")
pocket7.Profile = sketch12
pocket7.Type = "UpToFirst"
pocket7.Reversed = True

# Sketch on XY plane
sketch13 = body.newObject("Sketcher::SketchObject", "Sketch012")
sketch13.AttachmentSupport = (doc.getObject("XY_Plane"), [""])
sketch13.MapMode = "FlatFace"
sketch13.AttachmentOffset = App.Placement(V(0, 0, -127.5), App.Rotation())
sketch13.addGeometry([
    Part.LineSegment(V(191, 23, 0), V(191, 0, 0)),
    Part.LineSegment(V(191, 0, 0), V(209, 0, 0)),
    Part.LineSegment(V(209, 0, 0), V(209, 23, 0)),
    Part.LineSegment(V(209, 23, 0), V(191, 23, 0)),
], False)
sketch13.addConstraint([
    Sketcher.Constraint("Coincident", 0, 2, 1, 1),
    Sketcher.Constraint("Coincident", 1, 2, 2, 1),
    Sketcher.Constraint("Coincident", 2, 2, 3, 1),
    Sketcher.Constraint("Coincident", 3, 2, 0, 1),
    Sketcher.Constraint("Vertical", 0),
    Sketcher.Constraint("Horizontal", 1),
    Sketcher.Constraint("Vertical", 2),
    Sketcher.Constraint("Horizontal", 3),
    Sketcher.Constraint("PointOnObject", 0, 2, -1),
    Sketcher.Constraint("DistanceX", 1, 1, 1, 2, Q("17.7 mm")),
    Sketcher.Constraint("DistanceY", 0, 2, 0, 1, Q("22.9 mm")),
    Sketcher.Constraint("DistanceX", -1, 1, 0, 2, Q("191.33 mm")),
])
pocket8 = body.newObject("PartDesign::Pocket", "Pocket007")
pocket8.Profile = sketch13
pocket8.Type = "UpToFirst"
doc.recompute()

chamfer2 = body.newObject("PartDesign::Chamfer", "Chamfer001")
chamfer2.Base = (pocket8, edges_at(pocket8, [
    (212.1, 13.8, -60.969),
    (116.1, 13.8, -24.969),
    (146.1, 13.8, -35.783),
    (130.1, 13.8, -88.969),
    (184.1, 13.8, -102.969),
    (155.1, 13.8, -102.969),
    (34.43, 13.8, -88.978),
    (130.1, 13.8, -59.969),
    (155.1, 13.8, -73.969),
    (184.1, 13.8, -73.969),
    (212.1, 13.8, -89.969),
]))
chamfer2.Size = 2

# Sketch on XY plane
sketch14 = body.newObject("Sketcher::SketchObject", "Sketch013")
sketch14.AttachmentSupport = (doc.getObject("XY_Plane"), [""])
sketch14.MapMode = "FlatFace"
sketch14.AttachmentOffset = App.Placement(V(0, 0, -135), App.Rotation())
sketch14.addGeometry([
    Part.LineSegment(V(114.3, -2, 0), V(108.3, -2, 0)),  # 0
    Part.ArcOfCircle(Part.Circle(V(108.3, -0.5, 0), V(0, 0, 1), 1.5), math.radians(180), math.radians(270)),  # 1
    Part.LineSegment(V(106.8, -0.5, 0), V(106.8, 0.3, 0)),  # 2
    Part.ArcOfCircle(Part.Circle(V(108.3, 0.3, 0), V(0, 0, 1), 1.5), math.radians(90), math.radians(180)),  # 3
    Part.LineSegment(V(108.3, 1.8, 0), V(114.3, 1.8, 0)),  # 4
    Part.ArcOfCircle(Part.Circle(V(114.3, 0.3, 0), V(0, 0, 1), 1.5), math.radians(0), math.radians(90)),  # 5
    Part.LineSegment(V(115.8, 0.3, 0), V(115.8, -0.5, 0)),  # 6
    Part.ArcOfCircle(Part.Circle(V(114.3, -0.5, 0), V(0, 0, 1), 1.5), math.radians(-90), math.radians(0)),  # 7
], False)
sketch14.addConstraint([
    Sketcher.Constraint("Tangent", 0, 2, 1, 2),
    Sketcher.Constraint("Tangent", 1, 1, 2, 1),
    Sketcher.Constraint("Tangent", 2, 2, 3, 2),
    Sketcher.Constraint("Tangent", 3, 1, 4, 1),
    Sketcher.Constraint("Tangent", 4, 2, 5, 2),
    Sketcher.Constraint("Tangent", 5, 1, 6, 1),
    Sketcher.Constraint("Tangent", 6, 2, 7, 2),
    Sketcher.Constraint("Tangent", 7, 1, 0, 1),
    Sketcher.Constraint("Horizontal", 0),
    Sketcher.Constraint("Vertical", 2),
    Sketcher.Constraint("Horizontal", 4),
    Sketcher.Constraint("Vertical", 6),
    Sketcher.Constraint("Equal", 1, 3),
    Sketcher.Constraint("Equal", 3, 5),
    Sketcher.Constraint("Equal", 5, 7),
    Sketcher.Constraint("Radius", 1, Q("1.5 mm")),
    Sketcher.Constraint("DistanceX", 0, 2, 0, 1, Q("6 mm")),
    Sketcher.Constraint("DistanceY", 2, 1, 2, 2, Q("0.8 mm")),
    Sketcher.Constraint("DistanceY", 0, 2, -1, 1, Q("2 mm")),
    Sketcher.Constraint("DistanceX", -1, 1, 1, 3, Q("108.265 mm")),
])
pocket9 = body.newObject("PartDesign::Pocket", "Pocket008")
pocket9.Profile = sketch14
pocket9.Length = 7.5
pocket9.Reversed = True

# Sketch on XZ plane
sketch15 = body.newObject("Sketcher::SketchObject", "Sketch014")
sketch15.AttachmentSupport = (doc.getObject("XZ_Plane"), [""])
sketch15.MapMode = "FlatFace"
sketch15.addGeometry([
    Part.LineSegment(V(103.3, -127.5, 0), V(103.3, -129.1, 0)),  # 0
    Part.LineSegment(V(103.3, -129.1, 0), V(119.3, -129.1, 0)),  # 1
    Part.LineSegment(V(119.3, -129.1, 0), V(119.3, -127.5, 0)),  # 2
    Part.LineSegment(V(119.3, -127.5, 0), V(103.3, -127.5, 0)),  # 3
    Part.LineSegment(V(101.3, -130.3, 0), V(101.3, -135, 0)),  # 4
    Part.LineSegment(V(101.3, -135, 0), V(121.3, -135, 0)),  # 5
    Part.LineSegment(V(121.3, -135, 0), V(121.3, -130.3, 0)),  # 6
    Part.LineSegment(V(121.3, -130.3, 0), V(101.3, -130.3, 0)),  # 7
], False)
sketch15.addConstraint([
    Sketcher.Constraint("Coincident", 0, 2, 1, 1),
    Sketcher.Constraint("Coincident", 1, 2, 2, 1),
    Sketcher.Constraint("Coincident", 2, 2, 3, 1),
    Sketcher.Constraint("Coincident", 3, 2, 0, 1),
    Sketcher.Constraint("Coincident", 4, 2, 5, 1),
    Sketcher.Constraint("Coincident", 5, 2, 6, 1),
    Sketcher.Constraint("Coincident", 6, 2, 7, 1),
    Sketcher.Constraint("Coincident", 7, 2, 4, 1),
    Sketcher.Constraint("Vertical", 0),
    Sketcher.Constraint("Horizontal", 1),
    Sketcher.Constraint("Vertical", 2),
    Sketcher.Constraint("Horizontal", 3),
    Sketcher.Constraint("Vertical", 4),
    Sketcher.Constraint("Horizontal", 5),
    Sketcher.Constraint("Vertical", 6),
    Sketcher.Constraint("Horizontal", 7),
    Sketcher.Constraint("DistanceX", 1, 1, 1, 2, Q("16 mm")),
    Sketcher.Constraint("DistanceX", 5, 1, 5, 2, Q("20 mm")),
    Sketcher.Constraint("DistanceY", 0, 2, 0, 1, Q("1.6 mm")),
    Sketcher.Constraint("DistanceY", 4, 2, 4, 1, Q("4.7 mm")),
    Sketcher.Constraint("DistanceY", 4, 2, -1, 1, Q("135 mm")),
    Sketcher.Constraint("DistanceX", 4, 2, 0, 2, Q("2 mm")),
    Sketcher.Constraint("DistanceY", 0, 2, -1, 1, Q("129.1 mm")),
    Sketcher.Constraint("DistanceX", -1, 1, 0, 2, Q("103.265 mm")),
])
pocket10 = body.newObject("PartDesign::Pocket", "Pocket009")
pocket10.Profile = sketch15
pocket10.Length = 4.1
doc.recompute()

fillet4 = body.newObject("PartDesign::Fillet", "Fillet003")
fillet4.Base = (pocket10, edges_at(pocket10, [(121.265, 2.05, -135), (101.265, 2.05, -135)]))
fillet4.Radius = 2

# Sketch on XZ plane
sketch16 = body.newObject("Sketcher::SketchObject", "Sketch015")
sketch16.AttachmentSupport = (doc.getObject("XZ_Plane"), [""])
sketch16.MapMode = "FlatFace"
sketch16.AttachmentOffset = App.Placement(V(0, 0, -13.8), App.Rotation())
sketch16.addGeometry([
    Part.LineSegment(V(189, -122, 0), V(189, -128, 0)),
    Part.LineSegment(V(189, -128, 0), V(215, -128, 0)),
    Part.LineSegment(V(215, -128, 0), V(215, -122, 0)),
    Part.LineSegment(V(215, -122, 0), V(189, -122, 0)),
], False)
sketch16.addConstraint([
    Sketcher.Constraint("Coincident", 0, 2, 1, 1),
    Sketcher.Constraint("Coincident", 1, 2, 2, 1),
    Sketcher.Constraint("Coincident", 2, 2, 3, 1),
    Sketcher.Constraint("Coincident", 3, 2, 0, 1),
    Sketcher.Constraint("Vertical", 0),
    Sketcher.Constraint("Horizontal", 1),
    Sketcher.Constraint("Vertical", 2),
    Sketcher.Constraint("Horizontal", 3),
    Sketcher.Constraint("DistanceY", 0, 2, 0, 1, Q("5 mm")),
    Sketcher.Constraint("DistanceX", 1, 1, 1, 2, Q("25.7 mm")),
    Sketcher.Constraint("DistanceY", 0, 2, -1, 1, Q("127.5 mm")),
    Sketcher.Constraint("DistanceX", -1, 1, 0, 2, Q("189.33 mm")),
])
pad4 = body.newObject("PartDesign::Pad", "Pad003")
pad4.Profile = sketch16
pad4.Length = 4
doc.recompute()

chamfer3 = body.newObject("PartDesign::Chamfer", "Chamfer002")
chamfer3.Base = (pad4, edges_at(pad4, [(22.35, 13.8, -120.75), (38.35, 13.8, -120.75), (54.35, 13.8, -120.75)]))
chamfer3.Size = 2

doc.recompute()
